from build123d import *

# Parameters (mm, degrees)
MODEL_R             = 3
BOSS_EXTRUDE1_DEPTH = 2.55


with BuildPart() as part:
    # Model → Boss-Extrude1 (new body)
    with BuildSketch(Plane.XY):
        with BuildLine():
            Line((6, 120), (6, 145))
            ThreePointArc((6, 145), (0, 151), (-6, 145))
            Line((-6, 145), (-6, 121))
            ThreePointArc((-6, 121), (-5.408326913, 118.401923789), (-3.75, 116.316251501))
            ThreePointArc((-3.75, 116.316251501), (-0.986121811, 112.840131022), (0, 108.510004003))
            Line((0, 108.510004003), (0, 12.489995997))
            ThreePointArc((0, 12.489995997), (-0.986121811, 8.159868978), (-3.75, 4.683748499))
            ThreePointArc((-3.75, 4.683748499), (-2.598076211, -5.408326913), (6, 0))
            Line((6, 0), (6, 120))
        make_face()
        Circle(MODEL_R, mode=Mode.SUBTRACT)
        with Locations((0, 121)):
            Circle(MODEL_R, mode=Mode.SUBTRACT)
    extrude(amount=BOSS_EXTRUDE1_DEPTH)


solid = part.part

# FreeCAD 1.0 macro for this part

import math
import FreeCAD as App
import Part
import Sketcher

V = App.Vector

doc = App.newDocument("Part")
body = doc.addObject("PartDesign::Body", "Body")

# Sketch on XY plane
sketch1 = doc.addObject("Sketcher::SketchObject", "Sketch")
body.addObject(sketch1)
sketch1.AttachmentSupport = (doc.XY_Plane, [""])
sketch1.MapMode = "FlatFace"
sketch1.addGeometry([
    Part.ArcOfCircle(Part.Circle(V(0, 145, 0), V(0, 0, 1), 6), math.radians(0), math.radians(180)),  # 0
    Part.LineSegment(V(-6, 145, 0), V(-6, 121, 0)),  # 1
    Part.ArcOfCircle(Part.Circle(V(0, 121, 0), V(0, 0, 1), 6), math.radians(-180), math.radians(-128.682187)),  # 2
    Part.ArcOfCircle(Part.Circle(V(-10, 108.510004, 0), V(0, 0, 1), 10), math.radians(0), math.radians(51.317813)),  # 3
    Part.LineSegment(V(0, 108.510004, 0), V(0, 12.489996, 0)),  # 4
    Part.ArcOfCircle(Part.Circle(V(-10, 12.489996, 0), V(0, 0, 1), 10), math.radians(-51.317813), math.radians(0)),  # 5
    Part.ArcOfCircle(Part.Circle(V(0, 0, 0), V(0, 0, 1), 6), math.radians(128.682187), math.radians(360)),  # 6
    Part.LineSegment(V(6, 0, 0), V(6, 145, 0)),  # 7
    Part.Circle(V(0, 0, 0), V(0, 0, 1), 3),  # 8
    Part.Circle(V(0, 121, 0), V(0, 0, 1), 3),  # 9
], False)
sketch1.addConstraint([
    Sketcher.Constraint("Tangent", 0, 2, 1, 1),
    Sketcher.Constraint("Tangent", 1, 2, 2, 1),
    Sketcher.Constraint("Tangent", 2, 2, 3, 2),
    Sketcher.Constraint("Tangent", 3, 1, 4, 1),
    Sketcher.Constraint("Tangent", 4, 2, 5, 2),
    Sketcher.Constraint("Tangent", 5, 1, 6, 1),
    Sketcher.Constraint("Tangent", 6, 2, 7, 1),
    Sketcher.Constraint("Tangent", 7, 2, 0, 1),
    Sketcher.Constraint("Vertical", 1),
    Sketcher.Constraint("Vertical", 4),
    Sketcher.Constraint("Vertical", 7),
    Sketcher.Constraint("Coincident", 6, 3, -1, 1),
    Sketcher.Constraint("Coincident", 8, 3, -1, 1),
    Sketcher.Constraint("Coincident", 9, 3, 2, 3),
    Sketcher.Constraint("Equal", 0, 2),
    Sketcher.Constraint("Equal", 3, 5),
    Sketcher.Constraint("Equal", 2, 6),
    Sketcher.Constraint("Equal", 8, 9),
    Sketcher.Constraint("PointOnObject", 3, 1, -2),
    Sketcher.Constraint("Diameter", 8, 6.0),
    Sketcher.Constraint("Radius", 0, 6.0),
    Sketcher.Constraint("Radius", 3, 10.0),
    Sketcher.Constraint("DistanceY", 1, 2, 1, 1, 24.0),
    Sketcher.Constraint("DistanceY", 7, 1, 7, 2, 145.0),
])
pad1 = doc.addObject("PartDesign::Pad", "Pad")
body.addObject(pad1)
pad1.Profile = sketch1
pad1.Length = 2.55

doc.recompute()
